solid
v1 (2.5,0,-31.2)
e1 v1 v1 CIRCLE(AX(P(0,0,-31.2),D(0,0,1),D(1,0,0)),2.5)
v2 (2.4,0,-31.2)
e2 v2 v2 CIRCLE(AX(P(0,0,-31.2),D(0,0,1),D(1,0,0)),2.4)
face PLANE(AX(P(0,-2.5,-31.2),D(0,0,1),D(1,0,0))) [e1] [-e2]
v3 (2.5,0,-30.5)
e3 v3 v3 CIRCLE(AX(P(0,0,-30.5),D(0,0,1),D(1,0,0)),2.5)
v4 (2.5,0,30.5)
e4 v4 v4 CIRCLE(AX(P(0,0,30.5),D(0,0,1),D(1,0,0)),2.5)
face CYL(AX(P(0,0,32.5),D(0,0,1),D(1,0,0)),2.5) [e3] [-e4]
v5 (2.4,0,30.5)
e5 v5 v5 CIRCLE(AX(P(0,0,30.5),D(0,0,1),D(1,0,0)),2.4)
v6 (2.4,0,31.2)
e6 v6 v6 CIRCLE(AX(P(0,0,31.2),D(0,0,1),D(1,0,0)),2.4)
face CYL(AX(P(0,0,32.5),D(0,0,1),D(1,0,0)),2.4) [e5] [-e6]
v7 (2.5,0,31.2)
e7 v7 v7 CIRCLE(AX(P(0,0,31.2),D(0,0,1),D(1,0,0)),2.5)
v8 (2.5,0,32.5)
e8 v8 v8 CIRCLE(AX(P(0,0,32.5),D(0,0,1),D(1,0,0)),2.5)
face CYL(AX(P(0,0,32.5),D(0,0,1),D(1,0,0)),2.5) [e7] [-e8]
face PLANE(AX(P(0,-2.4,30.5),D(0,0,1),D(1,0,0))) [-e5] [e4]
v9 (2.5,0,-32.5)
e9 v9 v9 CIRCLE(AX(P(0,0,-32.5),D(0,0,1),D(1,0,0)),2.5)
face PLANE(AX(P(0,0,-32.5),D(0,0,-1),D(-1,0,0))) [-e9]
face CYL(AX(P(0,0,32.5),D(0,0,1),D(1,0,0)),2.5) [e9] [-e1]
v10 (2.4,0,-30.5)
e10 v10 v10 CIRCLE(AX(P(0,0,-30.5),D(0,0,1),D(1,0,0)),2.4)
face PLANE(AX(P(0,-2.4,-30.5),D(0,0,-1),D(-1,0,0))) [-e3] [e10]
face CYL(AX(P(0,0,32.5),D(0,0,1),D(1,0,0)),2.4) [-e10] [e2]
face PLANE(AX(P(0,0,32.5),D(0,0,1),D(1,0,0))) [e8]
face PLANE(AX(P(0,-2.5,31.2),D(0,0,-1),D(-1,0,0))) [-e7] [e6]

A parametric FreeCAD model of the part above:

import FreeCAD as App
import Part
import Sketcher
Q = App.Units.Quantity

doc = App.newDocument("Part")
body = doc.addObject("PartDesign::Body", "Body")

# Sketch on YZ plane
sketch1 = body.newObject("Sketcher::SketchObject", "Sketch")
sketch1.AttachmentSupport = (doc.getObject("YZ_Plane"), [""])
sketch1.MapMode = "FlatFace"
sketch1.addGeometry([
    Part.LineSegment(App.Vector(-2.5, 31.2, 0), App.Vector(-2.4, 31.2, 0)),  # 0
    Part.LineSegment(App.Vector(-2.4, 31.2, 0), App.Vector(-2.4, 30.5, 0)),  # 1
    Part.LineSegment(App.Vector(-2.4, 30.5, 0), App.Vector(-2.5, 30.5, 0)),  # 2
    Part.LineSegment(App.Vector(-2.5, 30.5, 0), App.Vector(-2.5, -30.5, 0)),  # 3
    Part.LineSegment(App.Vector(-2.5, -30.5, 0), App.Vector(-2.4, -30.5, 0)),  # 4
    Part.LineSegment(App.Vector(-2.4, -30.5, 0), App.Vector(-2.4, -31.2, 0)),  # 5
    Part.LineSegment(App.Vector(-2.4, -31.2, 0), App.Vector(-2.5, -31.2, 0)),  # 6
    Part.LineSegment(App.Vector(-2.5, -31.2, 0), App.Vector(-2.5, -32.5, 0)),  # 7
    Part.LineSegment(App.Vector(-2.5, -32.5, 0), App.Vector(0, -32.5, 0)),  # 8
    Part.LineSegment(App.Vector(0, -32.5, 0), App.Vector(0, 32.5, 0)),  # 9
    Part.LineSegment(App.Vector(0, 32.5, 0), App.Vector(-2.5, 32.5, 0)),  # 10
    Part.LineSegment(App.Vector(-2.5, 32.5, 0), App.Vector(-2.5, 31.2, 0)),  # 11
], False)
sketch1.addConstraint([
    Sketcher.Constraint("Coincident", 0, 2, 1, 1),
    Sketcher.Constraint("Coincident", 1, 2, 2, 1),
    Sketcher.Constraint("Coincident", 2, 2, 3, 1),
    Sketcher.Constraint("Coincident", 3, 2, 4, 1),
    Sketcher.Constraint("Coincident", 4, 2, 5, 1),
    Sketcher.Constraint("Coincident", 5, 2, 6, 1),
    Sketcher.Constraint("Coincident", 6, 2, 7, 1),
    Sketcher.Constraint("Coincident", 7, 2, 8, 1),
    Sketcher.Constraint("Coincident", 8, 2, 9, 1),
    Sketcher.Constraint("Coincident", 9, 2, 10, 1),
    Sketcher.Constraint("Coincident", 10, 2, 11, 1),
    Sketcher.Constraint("Coincident", 11, 2, 0, 1),
    Sketcher.Constraint("Horizontal", 0),
    Sketcher.Constraint("Vertical", 1),
    Sketcher.Constraint("Horizontal", 2),
    Sketcher.Constraint("Vertical", 3),
    Sketcher.Constraint("Horizontal", 4),
    Sketcher.Constraint("Vertical", 5),
    Sketcher.Constraint("Horizontal", 6),
    Sketcher.Constraint("Vertical", 7),
    Sketcher.Constraint("Horizontal", 8),
    Sketcher.Constraint("Vertical", 9),
    Sketcher.Constraint("Horizontal", 10),
    Sketcher.Constraint("Vertical", 11),
    Sketcher.Constraint("Symmetric", 8, 2, 9, 2, -1, 1),
    Sketcher.Constraint("Symmetric", 1, 2, 4, 2, -1),
    Sketcher.Constraint("Symmetric", 6, 2, 11, 2, -1),
    Sketcher.Constraint("Vertical", 3, 2, 6, 2),
    Sketcher.Constraint("DistanceY", 3, 2, 3, 1, Q("61 mm")),
    Sketcher.Constraint("DistanceY", 9, 1, 9, 2, Q("65 mm")),
    Sketcher.Constraint("DistanceX", 0, 1, 0, 2, Q("0.1 mm")),
    Sketcher.Constraint("DistanceX", 8, 1, 8, 2, Q("2.5 mm")),
    Sketcher.Constraint("DistanceY", 1, 2, 1, 1, Q("0.7 mm")),
])
revolution = body.newObject("PartDesign::Revolution", "Revolution")
revolution.Profile = sketch1
revolution.ReferenceAxis = (sketch1, ["V_Axis"])
revolution.Angle = 360

doc.recompute()
